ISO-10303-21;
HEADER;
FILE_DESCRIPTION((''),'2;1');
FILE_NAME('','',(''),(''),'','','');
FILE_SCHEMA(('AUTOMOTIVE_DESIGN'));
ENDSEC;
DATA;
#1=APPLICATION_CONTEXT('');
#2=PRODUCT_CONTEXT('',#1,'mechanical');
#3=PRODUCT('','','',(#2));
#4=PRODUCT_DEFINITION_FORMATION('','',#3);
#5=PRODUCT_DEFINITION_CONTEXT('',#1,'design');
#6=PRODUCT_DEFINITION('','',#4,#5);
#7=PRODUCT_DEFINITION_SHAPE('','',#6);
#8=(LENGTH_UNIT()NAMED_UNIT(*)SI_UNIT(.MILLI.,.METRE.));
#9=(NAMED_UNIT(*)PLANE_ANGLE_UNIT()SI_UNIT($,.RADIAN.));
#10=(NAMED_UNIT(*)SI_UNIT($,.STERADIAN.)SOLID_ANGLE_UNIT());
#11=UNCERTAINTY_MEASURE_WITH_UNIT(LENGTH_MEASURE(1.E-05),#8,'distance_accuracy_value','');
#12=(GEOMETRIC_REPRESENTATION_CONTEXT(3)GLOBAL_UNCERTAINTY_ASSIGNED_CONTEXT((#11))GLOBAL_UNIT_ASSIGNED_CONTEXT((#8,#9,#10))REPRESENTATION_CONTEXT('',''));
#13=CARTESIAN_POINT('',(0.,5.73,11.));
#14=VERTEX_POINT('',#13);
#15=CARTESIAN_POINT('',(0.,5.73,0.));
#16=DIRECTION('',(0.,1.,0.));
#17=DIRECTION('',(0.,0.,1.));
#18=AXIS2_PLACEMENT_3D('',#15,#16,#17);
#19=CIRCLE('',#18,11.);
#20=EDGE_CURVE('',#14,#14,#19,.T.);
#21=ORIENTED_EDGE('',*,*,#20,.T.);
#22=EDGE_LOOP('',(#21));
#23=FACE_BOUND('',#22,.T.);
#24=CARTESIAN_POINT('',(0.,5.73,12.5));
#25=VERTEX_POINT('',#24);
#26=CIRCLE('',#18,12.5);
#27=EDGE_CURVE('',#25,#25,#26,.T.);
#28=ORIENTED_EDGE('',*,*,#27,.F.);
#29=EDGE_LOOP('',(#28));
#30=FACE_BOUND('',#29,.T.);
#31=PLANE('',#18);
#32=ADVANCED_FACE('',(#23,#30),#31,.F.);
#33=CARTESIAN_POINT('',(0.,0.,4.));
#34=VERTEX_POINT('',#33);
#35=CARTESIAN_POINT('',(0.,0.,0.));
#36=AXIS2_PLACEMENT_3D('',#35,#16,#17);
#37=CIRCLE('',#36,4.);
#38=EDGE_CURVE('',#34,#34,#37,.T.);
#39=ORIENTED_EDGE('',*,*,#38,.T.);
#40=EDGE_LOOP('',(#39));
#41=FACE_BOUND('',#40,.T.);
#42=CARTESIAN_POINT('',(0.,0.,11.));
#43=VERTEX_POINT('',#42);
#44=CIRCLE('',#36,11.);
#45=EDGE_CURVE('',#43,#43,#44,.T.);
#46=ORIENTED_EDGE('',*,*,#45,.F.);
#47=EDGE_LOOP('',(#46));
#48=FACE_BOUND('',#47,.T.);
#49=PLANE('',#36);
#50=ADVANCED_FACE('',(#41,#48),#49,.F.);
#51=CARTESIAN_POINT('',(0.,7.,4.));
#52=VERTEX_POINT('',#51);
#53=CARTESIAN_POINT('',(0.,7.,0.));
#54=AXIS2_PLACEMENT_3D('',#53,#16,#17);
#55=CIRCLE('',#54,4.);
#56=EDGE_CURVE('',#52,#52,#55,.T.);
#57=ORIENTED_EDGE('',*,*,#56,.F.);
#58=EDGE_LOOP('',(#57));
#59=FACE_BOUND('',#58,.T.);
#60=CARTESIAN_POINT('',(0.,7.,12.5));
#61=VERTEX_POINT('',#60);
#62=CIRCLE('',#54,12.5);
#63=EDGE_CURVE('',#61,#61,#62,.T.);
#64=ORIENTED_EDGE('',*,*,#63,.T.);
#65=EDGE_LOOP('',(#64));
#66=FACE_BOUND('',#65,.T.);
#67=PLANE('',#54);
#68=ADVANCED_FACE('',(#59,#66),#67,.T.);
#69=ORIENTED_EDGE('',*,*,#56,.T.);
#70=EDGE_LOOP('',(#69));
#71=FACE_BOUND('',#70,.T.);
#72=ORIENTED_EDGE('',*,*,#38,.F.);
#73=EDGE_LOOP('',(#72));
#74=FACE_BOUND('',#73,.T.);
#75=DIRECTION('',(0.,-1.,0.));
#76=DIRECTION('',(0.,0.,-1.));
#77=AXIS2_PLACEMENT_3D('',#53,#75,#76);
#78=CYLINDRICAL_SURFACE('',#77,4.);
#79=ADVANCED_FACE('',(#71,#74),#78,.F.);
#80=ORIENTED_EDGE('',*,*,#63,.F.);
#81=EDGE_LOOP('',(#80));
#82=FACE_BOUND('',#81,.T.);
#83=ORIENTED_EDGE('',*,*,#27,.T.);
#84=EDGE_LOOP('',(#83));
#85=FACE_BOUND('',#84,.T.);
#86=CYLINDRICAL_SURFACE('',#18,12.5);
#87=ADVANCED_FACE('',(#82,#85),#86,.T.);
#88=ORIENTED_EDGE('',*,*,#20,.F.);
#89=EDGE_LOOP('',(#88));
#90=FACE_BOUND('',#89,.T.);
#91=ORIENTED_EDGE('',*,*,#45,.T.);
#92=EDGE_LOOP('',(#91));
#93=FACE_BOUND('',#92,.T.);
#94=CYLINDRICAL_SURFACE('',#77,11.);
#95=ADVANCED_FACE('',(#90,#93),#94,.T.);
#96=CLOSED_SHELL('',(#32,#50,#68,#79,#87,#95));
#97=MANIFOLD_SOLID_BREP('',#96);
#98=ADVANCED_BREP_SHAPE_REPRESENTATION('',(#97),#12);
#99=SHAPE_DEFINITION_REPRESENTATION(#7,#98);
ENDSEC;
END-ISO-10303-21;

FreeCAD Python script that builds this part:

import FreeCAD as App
import Part
import Sketcher
from FreeCAD import Vector

doc = App.newDocument("Part")
body = doc.addObject("PartDesign::Body", "Body")

sketch1 = body.newObject("Sketcher::SketchObject", "Sketch")
sketch1.AttachmentSupport = (doc.getObject("XZ_Plane"), [""])
sketch1.MapMode = "FlatFace"
sketch1.addGeometry([
    Part.Circle(Vector(0, 0, 0), Vector(0, 0, 1), 11),
    Part.Circle(Vector(0, 0, 0), Vector(0, 0, 1), 4),
], False)
sketch1.addConstraint([
    Sketcher.Constraint("Coincident", 0, 3, -1, 1),
    Sketcher.Constraint("Coincident", 1, 3, -1, 1),
    Sketcher.Constraint("Diameter", 0, 22.0),
    Sketcher.Constraint("Diameter", 1, 8.0),
])
pad1 = body.newObject("PartDesign::Pad", "Pad")
pad1.Profile = sketch1
pad1.Length = 7
pad1.Reversed = True

sketch2 = body.newObject("Sketcher::SketchObject", "Sketch001")
sketch2.AttachmentSupport = (doc.getObject("XZ_Plane"), [""])
sketch2.MapMode = "FlatFace"
sketch2.AttachmentOffset = App.Placement(Vector(0, 0, -7), App.Rotation())
sketch2.addGeometry([
    Part.Circle(Vector(0, 0, 0), Vector(0, 0, 1), 12),
    Part.Circle(Vector(0, 0, 0), Vector(0, 0, 1), 11),
], False)
sketch2.addConstraint([
    Sketcher.Constraint("Coincident", 0, 3, -1, 1),
    Sketcher.Constraint("Coincident", 1, 3, -1, 1),
    Sketcher.Constraint("Diameter", 0, 25.0),
    Sketcher.Constraint("Diameter", 1, 22.0),
])
pad2 = body.newObject("PartDesign::Pad", "Pad001")
pad2.Profile = sketch2
pad2.Length = 1.27

doc.recompute()
